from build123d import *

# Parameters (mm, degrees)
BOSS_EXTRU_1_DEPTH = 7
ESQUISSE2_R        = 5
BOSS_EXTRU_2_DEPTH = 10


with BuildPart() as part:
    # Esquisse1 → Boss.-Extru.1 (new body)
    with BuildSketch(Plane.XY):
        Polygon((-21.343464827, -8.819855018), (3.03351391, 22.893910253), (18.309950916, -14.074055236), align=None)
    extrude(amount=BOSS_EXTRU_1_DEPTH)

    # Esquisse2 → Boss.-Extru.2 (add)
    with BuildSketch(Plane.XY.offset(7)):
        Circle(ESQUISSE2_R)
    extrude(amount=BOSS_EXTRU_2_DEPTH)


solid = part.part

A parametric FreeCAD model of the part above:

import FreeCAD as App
import Part
import Sketcher

V = App.Vector
Q = App.Units.Quantity


def add_polygon(sketch, points):
    """Adds a closed chain of lines whose ends are joined by coincident constraints."""
    first, n = sketch.GeometryCount, len(points)
    for a, b in zip(points, points[1:] + points[:1]):
        sketch.addGeometry(Part.LineSegment(App.Vector(*a, 0), App.Vector(*b, 0)), False)
    for i in range(n):
        sketch.addConstraint(Sketcher.Constraint("Coincident", first + i, 2, first + (i + 1) % n, 1))

doc = App.newDocument("Part")
body = doc.addObject("PartDesign::Body", "Body")

sketch1 = body.newObject("Sketcher::SketchObject", "Sketch")
sketch1.AttachmentSupport = (doc.getObject("XY_Plane"), [""])
sketch1.MapMode = "FlatFace"
add_polygon(sketch1, [(3, 23), (-21, -9), (18, -14)])
sketch1.addConstraint(Sketcher.Constraint("Equal", 0, 1))
sketch1.addConstraint(Sketcher.Constraint("Equal", 1, 2))
sketch1.addConstraint(Sketcher.Constraint("Distance", 0, Q("40 mm")))
sketch1.addConstraint(Sketcher.Constraint("DistanceY", 1, 2, 0, 2, Q("5.2542 mm")))
sketch1.addConstraint(Sketcher.Constraint("DistanceX", -1, 1, 1, 2, Q("18.309951 mm")))
sketch1.addConstraint(Sketcher.Constraint("DistanceY", -1, 1, 2, 2, Q("22.89391 mm")))
pad1 = body.newObject("PartDesign::Pad", "Pad")
pad1.Profile = sketch1
pad1.Length = 7

sketch2 = body.newObject("Sketcher::SketchObject", "Sketch001")
sketch2.AttachmentSupport = (doc.getObject("XY_Plane"), [""])
sketch2.MapMode = "FlatFace"
sketch2.AttachmentOffset = App.Placement(V(0, 0, 7), App.Rotation())
sketch2.addGeometry(Part.Circle(V(0, 0, 0), V(0, 0, 1), 5), False)
sketch2.addConstraint(Sketcher.Constraint("Coincident", 0, 3, -1, 1))
sketch2.addConstraint(Sketcher.Constraint("Diameter", 0, Q("10 mm")))
pad2 = body.newObject("PartDesign::Pad", "Pad001")
pad2.Profile = sketch2
pad2.Length = 10

doc.recompute()
